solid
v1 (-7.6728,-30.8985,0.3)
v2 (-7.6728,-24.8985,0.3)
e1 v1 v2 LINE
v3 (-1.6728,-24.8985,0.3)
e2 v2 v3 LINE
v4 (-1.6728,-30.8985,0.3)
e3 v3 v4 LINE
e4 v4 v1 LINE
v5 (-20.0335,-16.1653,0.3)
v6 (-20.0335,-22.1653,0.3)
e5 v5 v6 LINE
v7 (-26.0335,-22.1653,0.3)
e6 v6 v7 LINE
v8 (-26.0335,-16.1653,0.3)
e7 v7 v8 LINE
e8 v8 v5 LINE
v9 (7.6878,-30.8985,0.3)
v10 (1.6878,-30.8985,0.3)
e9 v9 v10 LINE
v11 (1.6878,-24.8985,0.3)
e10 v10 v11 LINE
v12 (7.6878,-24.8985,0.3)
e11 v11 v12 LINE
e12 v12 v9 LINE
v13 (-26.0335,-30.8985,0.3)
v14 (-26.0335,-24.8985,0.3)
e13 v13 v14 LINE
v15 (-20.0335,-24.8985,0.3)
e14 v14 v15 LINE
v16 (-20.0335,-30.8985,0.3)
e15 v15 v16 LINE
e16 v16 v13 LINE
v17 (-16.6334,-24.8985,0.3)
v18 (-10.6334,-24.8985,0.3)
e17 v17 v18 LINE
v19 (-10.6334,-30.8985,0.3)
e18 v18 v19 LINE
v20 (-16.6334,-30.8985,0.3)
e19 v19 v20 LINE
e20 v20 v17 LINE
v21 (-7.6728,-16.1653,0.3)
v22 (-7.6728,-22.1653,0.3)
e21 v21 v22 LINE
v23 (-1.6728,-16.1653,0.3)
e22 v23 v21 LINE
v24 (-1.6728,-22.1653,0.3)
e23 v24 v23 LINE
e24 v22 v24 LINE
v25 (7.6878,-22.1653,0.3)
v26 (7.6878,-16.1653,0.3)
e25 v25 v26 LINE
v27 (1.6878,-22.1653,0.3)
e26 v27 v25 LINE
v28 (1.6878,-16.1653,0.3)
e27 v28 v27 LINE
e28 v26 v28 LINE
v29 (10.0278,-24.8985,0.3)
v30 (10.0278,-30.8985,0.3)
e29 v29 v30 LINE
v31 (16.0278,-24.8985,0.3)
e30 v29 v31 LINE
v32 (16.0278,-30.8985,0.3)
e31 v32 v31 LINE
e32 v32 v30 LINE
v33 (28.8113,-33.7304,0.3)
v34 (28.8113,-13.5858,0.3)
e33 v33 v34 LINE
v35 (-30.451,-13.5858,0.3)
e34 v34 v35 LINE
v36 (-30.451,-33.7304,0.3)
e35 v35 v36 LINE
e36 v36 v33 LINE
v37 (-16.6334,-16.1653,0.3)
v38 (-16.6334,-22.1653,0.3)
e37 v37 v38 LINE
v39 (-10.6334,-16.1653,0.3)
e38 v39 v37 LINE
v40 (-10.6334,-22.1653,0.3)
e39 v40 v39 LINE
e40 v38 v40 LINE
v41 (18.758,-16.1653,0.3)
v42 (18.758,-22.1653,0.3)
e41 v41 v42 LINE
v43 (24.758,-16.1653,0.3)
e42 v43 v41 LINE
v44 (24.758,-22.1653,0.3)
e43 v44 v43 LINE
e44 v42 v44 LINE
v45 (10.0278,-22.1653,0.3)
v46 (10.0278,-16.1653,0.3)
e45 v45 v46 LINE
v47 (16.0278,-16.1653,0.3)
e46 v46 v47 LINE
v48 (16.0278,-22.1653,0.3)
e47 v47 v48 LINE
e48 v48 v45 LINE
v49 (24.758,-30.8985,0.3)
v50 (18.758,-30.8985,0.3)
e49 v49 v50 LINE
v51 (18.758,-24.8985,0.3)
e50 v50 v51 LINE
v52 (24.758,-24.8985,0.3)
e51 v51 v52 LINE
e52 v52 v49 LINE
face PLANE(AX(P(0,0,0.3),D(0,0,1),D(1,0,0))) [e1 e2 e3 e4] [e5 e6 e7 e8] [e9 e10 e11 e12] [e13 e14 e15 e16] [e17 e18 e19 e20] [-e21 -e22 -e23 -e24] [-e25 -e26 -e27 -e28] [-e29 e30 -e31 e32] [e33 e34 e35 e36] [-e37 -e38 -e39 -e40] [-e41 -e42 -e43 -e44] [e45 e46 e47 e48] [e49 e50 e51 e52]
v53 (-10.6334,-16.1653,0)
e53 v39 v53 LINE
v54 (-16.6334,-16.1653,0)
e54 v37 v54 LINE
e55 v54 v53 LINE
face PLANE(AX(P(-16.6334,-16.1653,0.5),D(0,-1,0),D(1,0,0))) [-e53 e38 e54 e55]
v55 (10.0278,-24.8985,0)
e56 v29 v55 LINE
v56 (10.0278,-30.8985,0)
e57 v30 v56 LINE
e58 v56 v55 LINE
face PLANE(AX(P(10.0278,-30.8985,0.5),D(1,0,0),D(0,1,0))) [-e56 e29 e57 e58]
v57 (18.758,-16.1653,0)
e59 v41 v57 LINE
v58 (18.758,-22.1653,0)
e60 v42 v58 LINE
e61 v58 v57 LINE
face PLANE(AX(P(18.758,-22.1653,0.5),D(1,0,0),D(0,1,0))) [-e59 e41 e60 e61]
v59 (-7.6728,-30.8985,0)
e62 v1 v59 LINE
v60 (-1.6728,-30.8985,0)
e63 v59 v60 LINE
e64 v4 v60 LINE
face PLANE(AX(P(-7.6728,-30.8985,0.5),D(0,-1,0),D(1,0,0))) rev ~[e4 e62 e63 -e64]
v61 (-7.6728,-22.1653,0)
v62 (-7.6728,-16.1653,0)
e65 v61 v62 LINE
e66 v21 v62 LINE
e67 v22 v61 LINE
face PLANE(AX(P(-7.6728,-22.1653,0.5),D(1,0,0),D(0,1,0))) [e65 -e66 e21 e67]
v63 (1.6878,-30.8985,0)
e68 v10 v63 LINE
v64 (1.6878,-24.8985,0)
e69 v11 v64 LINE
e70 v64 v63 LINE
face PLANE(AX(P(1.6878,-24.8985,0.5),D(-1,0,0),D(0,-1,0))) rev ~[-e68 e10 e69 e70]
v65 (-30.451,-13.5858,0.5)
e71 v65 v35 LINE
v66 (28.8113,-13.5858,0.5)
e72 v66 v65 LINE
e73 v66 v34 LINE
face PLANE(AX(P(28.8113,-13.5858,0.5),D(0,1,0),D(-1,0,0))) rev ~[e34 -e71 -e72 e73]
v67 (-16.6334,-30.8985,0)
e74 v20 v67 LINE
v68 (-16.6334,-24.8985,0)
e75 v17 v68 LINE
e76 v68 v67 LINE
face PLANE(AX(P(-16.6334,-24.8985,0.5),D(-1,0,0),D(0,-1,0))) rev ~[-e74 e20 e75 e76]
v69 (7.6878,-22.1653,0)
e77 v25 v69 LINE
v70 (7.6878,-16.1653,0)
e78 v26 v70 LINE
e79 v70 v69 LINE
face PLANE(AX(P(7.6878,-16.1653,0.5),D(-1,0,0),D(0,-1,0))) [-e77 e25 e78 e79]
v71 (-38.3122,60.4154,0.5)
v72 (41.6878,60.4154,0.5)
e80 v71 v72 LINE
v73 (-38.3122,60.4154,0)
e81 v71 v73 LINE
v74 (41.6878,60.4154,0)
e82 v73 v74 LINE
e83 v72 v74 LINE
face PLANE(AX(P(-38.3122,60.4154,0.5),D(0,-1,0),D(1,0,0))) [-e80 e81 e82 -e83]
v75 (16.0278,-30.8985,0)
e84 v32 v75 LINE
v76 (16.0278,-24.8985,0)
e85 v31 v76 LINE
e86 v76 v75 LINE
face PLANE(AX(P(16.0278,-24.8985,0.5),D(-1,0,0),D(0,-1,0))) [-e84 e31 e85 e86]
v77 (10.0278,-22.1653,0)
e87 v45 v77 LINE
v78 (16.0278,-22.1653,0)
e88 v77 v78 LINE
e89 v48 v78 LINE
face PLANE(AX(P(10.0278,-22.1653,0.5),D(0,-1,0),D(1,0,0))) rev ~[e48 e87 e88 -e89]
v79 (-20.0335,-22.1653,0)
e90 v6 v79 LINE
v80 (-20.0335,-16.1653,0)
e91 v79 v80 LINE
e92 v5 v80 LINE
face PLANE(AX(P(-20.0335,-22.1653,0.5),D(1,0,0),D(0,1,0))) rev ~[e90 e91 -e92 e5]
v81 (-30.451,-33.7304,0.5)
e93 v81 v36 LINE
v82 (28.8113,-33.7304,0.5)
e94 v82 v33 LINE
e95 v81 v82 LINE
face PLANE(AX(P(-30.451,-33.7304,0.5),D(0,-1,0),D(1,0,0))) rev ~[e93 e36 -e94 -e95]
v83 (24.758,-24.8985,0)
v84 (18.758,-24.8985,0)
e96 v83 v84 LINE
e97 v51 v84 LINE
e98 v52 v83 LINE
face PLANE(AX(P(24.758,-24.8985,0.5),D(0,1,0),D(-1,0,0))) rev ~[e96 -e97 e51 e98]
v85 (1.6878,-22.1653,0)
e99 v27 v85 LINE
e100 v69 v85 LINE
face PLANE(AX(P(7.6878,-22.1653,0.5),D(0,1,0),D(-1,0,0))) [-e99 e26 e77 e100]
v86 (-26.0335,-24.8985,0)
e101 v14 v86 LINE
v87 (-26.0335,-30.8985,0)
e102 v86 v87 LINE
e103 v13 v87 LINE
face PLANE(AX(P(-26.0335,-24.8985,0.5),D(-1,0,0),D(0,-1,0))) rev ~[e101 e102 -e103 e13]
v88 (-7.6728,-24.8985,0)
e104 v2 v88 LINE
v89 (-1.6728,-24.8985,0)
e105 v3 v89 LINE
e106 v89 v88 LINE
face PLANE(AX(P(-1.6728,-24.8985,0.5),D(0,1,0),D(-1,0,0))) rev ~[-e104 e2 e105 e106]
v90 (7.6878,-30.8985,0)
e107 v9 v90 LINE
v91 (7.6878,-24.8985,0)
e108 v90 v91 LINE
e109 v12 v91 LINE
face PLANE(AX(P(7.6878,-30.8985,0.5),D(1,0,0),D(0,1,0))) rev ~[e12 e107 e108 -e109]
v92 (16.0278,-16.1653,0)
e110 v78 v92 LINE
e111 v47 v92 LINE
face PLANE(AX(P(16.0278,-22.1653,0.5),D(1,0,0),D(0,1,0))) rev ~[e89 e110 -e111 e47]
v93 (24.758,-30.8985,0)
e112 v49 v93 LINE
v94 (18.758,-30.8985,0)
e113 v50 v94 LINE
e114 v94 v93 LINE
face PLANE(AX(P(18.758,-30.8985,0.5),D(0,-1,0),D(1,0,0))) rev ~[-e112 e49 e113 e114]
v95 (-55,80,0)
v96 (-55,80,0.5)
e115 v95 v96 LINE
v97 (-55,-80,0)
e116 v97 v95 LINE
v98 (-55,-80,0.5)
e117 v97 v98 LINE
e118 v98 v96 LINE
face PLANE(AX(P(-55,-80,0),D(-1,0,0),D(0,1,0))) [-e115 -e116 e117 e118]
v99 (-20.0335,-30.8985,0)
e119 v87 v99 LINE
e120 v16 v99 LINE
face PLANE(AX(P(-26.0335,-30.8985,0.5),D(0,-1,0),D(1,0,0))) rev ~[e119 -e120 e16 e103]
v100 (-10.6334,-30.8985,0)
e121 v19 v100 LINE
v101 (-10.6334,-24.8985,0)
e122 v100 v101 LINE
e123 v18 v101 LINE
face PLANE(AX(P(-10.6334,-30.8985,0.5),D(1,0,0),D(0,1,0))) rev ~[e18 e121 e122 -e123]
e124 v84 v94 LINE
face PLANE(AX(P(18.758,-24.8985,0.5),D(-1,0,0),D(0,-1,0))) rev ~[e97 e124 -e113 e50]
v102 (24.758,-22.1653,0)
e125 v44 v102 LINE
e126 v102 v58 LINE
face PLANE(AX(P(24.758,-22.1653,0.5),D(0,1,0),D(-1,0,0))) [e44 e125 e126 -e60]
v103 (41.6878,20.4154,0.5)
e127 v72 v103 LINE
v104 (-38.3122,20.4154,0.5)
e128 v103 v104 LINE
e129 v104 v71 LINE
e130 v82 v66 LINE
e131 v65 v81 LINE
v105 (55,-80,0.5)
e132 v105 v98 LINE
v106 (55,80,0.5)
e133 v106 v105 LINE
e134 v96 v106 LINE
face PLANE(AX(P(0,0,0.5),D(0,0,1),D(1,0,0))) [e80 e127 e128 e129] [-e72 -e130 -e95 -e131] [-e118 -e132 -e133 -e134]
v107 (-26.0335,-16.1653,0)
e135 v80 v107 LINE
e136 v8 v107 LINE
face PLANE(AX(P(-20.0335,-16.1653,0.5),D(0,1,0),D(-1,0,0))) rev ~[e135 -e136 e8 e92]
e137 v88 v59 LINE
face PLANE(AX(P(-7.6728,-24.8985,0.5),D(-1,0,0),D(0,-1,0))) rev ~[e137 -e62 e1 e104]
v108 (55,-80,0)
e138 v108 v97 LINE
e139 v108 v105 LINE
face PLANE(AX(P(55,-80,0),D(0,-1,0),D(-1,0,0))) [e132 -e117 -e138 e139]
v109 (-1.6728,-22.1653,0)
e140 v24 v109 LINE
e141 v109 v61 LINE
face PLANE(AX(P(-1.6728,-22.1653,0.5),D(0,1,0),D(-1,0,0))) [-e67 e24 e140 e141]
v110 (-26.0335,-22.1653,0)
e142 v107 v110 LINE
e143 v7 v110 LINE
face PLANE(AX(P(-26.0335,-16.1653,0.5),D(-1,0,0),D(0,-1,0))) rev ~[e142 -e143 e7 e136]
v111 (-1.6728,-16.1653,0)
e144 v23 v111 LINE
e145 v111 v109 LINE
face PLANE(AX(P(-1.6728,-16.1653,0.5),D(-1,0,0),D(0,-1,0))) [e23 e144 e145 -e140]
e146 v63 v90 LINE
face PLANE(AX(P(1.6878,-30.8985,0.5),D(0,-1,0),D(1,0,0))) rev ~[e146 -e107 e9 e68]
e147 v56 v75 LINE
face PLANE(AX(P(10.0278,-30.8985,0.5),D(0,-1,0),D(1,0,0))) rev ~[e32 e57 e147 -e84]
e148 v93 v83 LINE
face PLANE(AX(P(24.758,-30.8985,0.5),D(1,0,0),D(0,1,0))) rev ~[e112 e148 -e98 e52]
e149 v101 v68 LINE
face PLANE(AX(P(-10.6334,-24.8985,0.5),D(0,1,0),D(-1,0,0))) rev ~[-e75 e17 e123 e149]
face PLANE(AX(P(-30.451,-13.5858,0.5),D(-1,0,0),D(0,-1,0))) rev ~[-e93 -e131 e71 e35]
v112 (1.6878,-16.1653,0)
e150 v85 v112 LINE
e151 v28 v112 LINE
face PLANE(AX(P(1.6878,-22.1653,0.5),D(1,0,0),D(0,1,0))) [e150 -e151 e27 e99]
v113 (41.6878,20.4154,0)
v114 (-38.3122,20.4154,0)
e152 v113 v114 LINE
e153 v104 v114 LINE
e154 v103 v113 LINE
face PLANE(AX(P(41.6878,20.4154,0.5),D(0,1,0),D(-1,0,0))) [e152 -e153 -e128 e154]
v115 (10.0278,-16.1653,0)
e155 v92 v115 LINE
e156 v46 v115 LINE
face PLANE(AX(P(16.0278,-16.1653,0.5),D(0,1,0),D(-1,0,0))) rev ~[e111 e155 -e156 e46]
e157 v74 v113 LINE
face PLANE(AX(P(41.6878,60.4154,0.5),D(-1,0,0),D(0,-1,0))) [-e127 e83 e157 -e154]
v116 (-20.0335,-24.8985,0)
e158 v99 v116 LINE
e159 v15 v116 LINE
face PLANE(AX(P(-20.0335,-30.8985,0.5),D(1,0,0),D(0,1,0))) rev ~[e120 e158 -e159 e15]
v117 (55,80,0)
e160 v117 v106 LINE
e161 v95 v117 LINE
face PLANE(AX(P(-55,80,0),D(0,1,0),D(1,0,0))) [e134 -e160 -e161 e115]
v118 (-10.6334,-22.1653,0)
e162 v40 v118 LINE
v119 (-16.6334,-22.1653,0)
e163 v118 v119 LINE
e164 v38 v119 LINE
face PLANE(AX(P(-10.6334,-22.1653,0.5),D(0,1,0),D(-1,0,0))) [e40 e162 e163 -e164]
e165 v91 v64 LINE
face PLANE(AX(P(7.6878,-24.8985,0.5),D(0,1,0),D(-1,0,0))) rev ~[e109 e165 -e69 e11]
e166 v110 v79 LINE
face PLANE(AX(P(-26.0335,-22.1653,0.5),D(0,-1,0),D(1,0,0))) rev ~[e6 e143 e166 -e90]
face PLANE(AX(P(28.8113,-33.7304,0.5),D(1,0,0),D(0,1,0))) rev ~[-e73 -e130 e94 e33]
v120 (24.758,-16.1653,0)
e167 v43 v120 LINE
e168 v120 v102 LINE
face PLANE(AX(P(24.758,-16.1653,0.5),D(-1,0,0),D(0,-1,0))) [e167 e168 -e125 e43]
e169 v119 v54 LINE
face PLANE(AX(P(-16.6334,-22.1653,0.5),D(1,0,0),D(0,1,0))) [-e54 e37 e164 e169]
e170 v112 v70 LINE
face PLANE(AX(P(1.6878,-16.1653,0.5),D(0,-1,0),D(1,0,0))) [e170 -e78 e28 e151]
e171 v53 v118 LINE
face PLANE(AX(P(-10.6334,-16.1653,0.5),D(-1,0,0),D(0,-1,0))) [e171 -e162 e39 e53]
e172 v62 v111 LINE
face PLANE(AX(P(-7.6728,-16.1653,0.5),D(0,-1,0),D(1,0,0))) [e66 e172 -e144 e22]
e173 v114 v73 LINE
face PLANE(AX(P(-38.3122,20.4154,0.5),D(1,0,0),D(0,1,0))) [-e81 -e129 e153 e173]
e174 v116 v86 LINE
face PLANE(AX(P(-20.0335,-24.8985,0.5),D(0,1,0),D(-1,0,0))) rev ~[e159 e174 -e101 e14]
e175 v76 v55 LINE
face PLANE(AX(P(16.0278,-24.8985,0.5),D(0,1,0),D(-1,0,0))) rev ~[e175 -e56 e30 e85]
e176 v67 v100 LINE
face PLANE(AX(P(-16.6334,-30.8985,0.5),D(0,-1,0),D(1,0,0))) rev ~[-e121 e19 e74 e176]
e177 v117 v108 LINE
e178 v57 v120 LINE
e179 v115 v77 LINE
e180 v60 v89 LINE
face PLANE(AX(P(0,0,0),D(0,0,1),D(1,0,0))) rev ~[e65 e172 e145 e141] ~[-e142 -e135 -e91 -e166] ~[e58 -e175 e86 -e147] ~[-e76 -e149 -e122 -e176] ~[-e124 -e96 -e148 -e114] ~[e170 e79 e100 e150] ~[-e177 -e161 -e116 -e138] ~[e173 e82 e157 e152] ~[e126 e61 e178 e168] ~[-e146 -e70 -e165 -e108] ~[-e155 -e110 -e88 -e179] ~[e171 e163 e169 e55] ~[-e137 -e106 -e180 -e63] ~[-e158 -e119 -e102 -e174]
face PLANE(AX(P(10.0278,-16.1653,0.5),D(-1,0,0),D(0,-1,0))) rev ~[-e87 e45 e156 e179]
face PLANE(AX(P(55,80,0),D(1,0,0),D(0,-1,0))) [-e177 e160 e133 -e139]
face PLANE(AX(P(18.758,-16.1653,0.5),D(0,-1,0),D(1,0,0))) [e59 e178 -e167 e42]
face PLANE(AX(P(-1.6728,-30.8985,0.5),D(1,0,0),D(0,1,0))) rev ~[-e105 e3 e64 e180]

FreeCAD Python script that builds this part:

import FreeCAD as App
import Part
import Sketcher

V = App.Vector
Q = App.Units.Quantity


def add_polygon(sketch, points):
    """Adds a closed chain of lines whose ends are joined by coincident constraints."""
    first, n = sketch.GeometryCount, len(points)
    for a, b in zip(points, points[1:] + points[:1]):
        sketch.addGeometry(Part.LineSegment(App.Vector(*a, 0), App.Vector(*b, 0)), False)
    for i in range(n):
        sketch.addConstraint(Sketcher.Constraint("Coincident", first + i, 2, first + (i + 1) % n, 1))

doc = App.newDocument("Part")
body = doc.addObject("PartDesign::Body", "Body")

sketch1 = body.newObject("Sketcher::SketchObject", "Sketch")
sketch1.AttachmentSupport = (doc.getObject("XY_Plane"), [""])
sketch1.MapMode = "FlatFace"
add_polygon(sketch1, [(55, 80), (-55, 80), (-55, -80), (55, -80)])
sketch1.addConstraint(Sketcher.Constraint("Horizontal", 0))
sketch1.addConstraint(Sketcher.Constraint("Vertical", 1))
sketch1.addConstraint(Sketcher.Constraint("Horizontal", 2))
sketch1.addConstraint(Sketcher.Constraint("Vertical", 3))
sketch1.addConstraint(Sketcher.Constraint("Symmetric", 0, 2, 2, 2, -1, 1))
sketch1.addConstraint(Sketcher.Constraint("DistanceX", 0, 2, 0, 1, Q("110 mm")))
sketch1.addConstraint(Sketcher.Constraint("DistanceY", 1, 2, 1, 1, Q("160 mm")))
pad1 = body.newObject("PartDesign::Pad", "Pad")
pad1.Profile = sketch1
pad1.Length = 0.5

sketch2 = body.newObject("Sketcher::SketchObject", "Sketch001")
sketch2.AttachmentSupport = (doc.getObject("XY_Plane"), [""])
sketch2.MapMode = "FlatFace"
sketch2.AttachmentOffset = App.Placement(V(0, 0, 0.5), App.Rotation())
add_polygon(sketch2, [(42, 60), (-38, 60), (-38, 20), (42, 20)])
add_polygon(sketch2, [(-20, -16), (-26, -16), (-26, -22), (-20, -22)])
add_polygon(sketch2, [(-17, -16), (-17, -22), (-11, -22), (-11, -16)])
add_polygon(sketch2, [(-8, -16), (-8, -22), (-2, -22), (-2, -16)])
add_polygon(sketch2, [(2, -16), (2, -22), (8, -22), (8, -16)])
add_polygon(sketch2, [(16, -16), (10, -16), (10, -22), (16, -22)])
add_polygon(sketch2, [(19, -16), (19, -22), (25, -22), (25, -16)])
add_polygon(sketch2, [(-20, -25), (-26, -25), (-26, -31), (-20, -31)])
add_polygon(sketch2, [(-11, -25), (-17, -25), (-17, -31), (-11, -31)])
add_polygon(sketch2, [(-2, -25), (-8, -25), (-8, -31), (-2, -31)])
add_polygon(sketch2, [(8, -25), (2, -25), (2, -31), (8, -31)])
add_polygon(sketch2, [(16, -31), (16, -25), (10, -25), (10, -31)])
add_polygon(sketch2, [(25, -25), (19, -25), (19, -31), (25, -31)])
sketch2.addConstraint(Sketcher.Constraint("Horizontal", 0))
sketch2.addConstraint(Sketcher.Constraint("Vertical", 1))
sketch2.addConstraint(Sketcher.Constraint("Horizontal", 2))
sketch2.addConstraint(Sketcher.Constraint("Vertical", 3))
sketch2.addConstraint(Sketcher.Constraint("Horizontal", 4))
sketch2.addConstraint(Sketcher.Constraint("Vertical", 5))
sketch2.addConstraint(Sketcher.Constraint("Horizontal", 6))
sketch2.addConstraint(Sketcher.Constraint("Vertical", 7))
sketch2.addConstraint(Sketcher.Constraint("Vertical", 8))
sketch2.addConstraint(Sketcher.Constraint("Horizontal", 9))
sketch2.addConstraint(Sketcher.Constraint("Vertical", 10))
sketch2.addConstraint(Sketcher.Constraint("Horizontal", 11))
sketch2.addConstraint(Sketcher.Constraint("Vertical", 12))
sketch2.addConstraint(Sketcher.Constraint("Horizontal", 13))
sketch2.addConstraint(Sketcher.Constraint("Vertical", 14))
sketch2.addConstraint(Sketcher.Constraint("Horizontal", 15))
sketch2.addConstraint(Sketcher.Constraint("Vertical", 16))
sketch2.addConstraint(Sketcher.Constraint("Horizontal", 17))
sketch2.addConstraint(Sketcher.Constraint("Vertical", 18))
sketch2.addConstraint(Sketcher.Constraint("Horizontal", 19))
sketch2.addConstraint(Sketcher.Constraint("Horizontal", 20))
sketch2.addConstraint(Sketcher.Constraint("Vertical", 21))
sketch2.addConstraint(Sketcher.Constraint("Horizontal", 22))
sketch2.addConstraint(Sketcher.Constraint("Vertical", 23))
sketch2.addConstraint(Sketcher.Constraint("Vertical", 24))
sketch2.addConstraint(Sketcher.Constraint("Horizontal", 25))
sketch2.addConstraint(Sketcher.Constraint("Vertical", 26))
sketch2.addConstraint(Sketcher.Constraint("Horizontal", 27))
sketch2.addConstraint(Sketcher.Constraint("Horizontal", 28))
sketch2.addConstraint(Sketcher.Constraint("Vertical", 29))
sketch2.addConstraint(Sketcher.Constraint("Horizontal", 30))
sketch2.addConstraint(Sketcher.Constraint("Vertical", 31))
sketch2.addConstraint(Sketcher.Constraint("Horizontal", 32))
sketch2.addConstraint(Sketcher.Constraint("Vertical", 33))
sketch2.addConstraint(Sketcher.Constraint("Horizontal", 34))
sketch2.addConstraint(Sketcher.Constraint("Vertical", 35))
sketch2.addConstraint(Sketcher.Constraint("Horizontal", 36))
sketch2.addConstraint(Sketcher.Constraint("Vertical", 37))
sketch2.addConstraint(Sketcher.Constraint("Horizontal", 38))
sketch2.addConstraint(Sketcher.Constraint("Vertical", 39))
sketch2.addConstraint(Sketcher.Constraint("Horizontal", 40))
sketch2.addConstraint(Sketcher.Constraint("Vertical", 41))
sketch2.addConstraint(Sketcher.Constraint("Horizontal", 42))
sketch2.addConstraint(Sketcher.Constraint("Vertical", 43))
sketch2.addConstraint(Sketcher.Constraint("Vertical", 44))
sketch2.addConstraint(Sketcher.Constraint("Horizontal", 45))
sketch2.addConstraint(Sketcher.Constraint("Vertical", 46))
sketch2.addConstraint(Sketcher.Constraint("Horizontal", 47))
sketch2.addConstraint(Sketcher.Constraint("Horizontal", 48))
sketch2.addConstraint(Sketcher.Constraint("Vertical", 49))
sketch2.addConstraint(Sketcher.Constraint("Horizontal", 50))
sketch2.addConstraint(Sketcher.Constraint("Vertical", 51))
sketch2.addConstraint(Sketcher.Constraint("Horizontal", 6, 2, 8, 2))
sketch2.addConstraint(Sketcher.Constraint("Horizontal", 7, 2, 10, 2))
sketch2.addConstraint(Sketcher.Constraint("Horizontal", 9, 2, 12, 2))
sketch2.addConstraint(Sketcher.Constraint("Horizontal", 11, 2, 14, 2))
sketch2.addConstraint(Sketcher.Constraint("Horizontal", 13, 2, 16, 2))
sketch2.addConstraint(Sketcher.Constraint("Horizontal", 15, 2, 18, 2))
sketch2.addConstraint(Sketcher.Constraint("Horizontal", 19, 2, 20, 2))
sketch2.addConstraint(Sketcher.Constraint("Horizontal", 17, 2, 21, 2))
sketch2.addConstraint(Sketcher.Constraint("Horizontal", 22, 2, 24, 2))
sketch2.addConstraint(Sketcher.Constraint("Horizontal", 23, 2, 26, 2))
sketch2.addConstraint(Sketcher.Constraint("Horizontal", 31, 2, 32, 2))
sketch2.addConstraint(Sketcher.Constraint("Horizontal", 30, 2, 33, 2))
sketch2.addConstraint(Sketcher.Constraint("Horizontal", 35, 2, 36, 2))
sketch2.addConstraint(Sketcher.Constraint("Horizontal", 34, 2, 37, 2))
sketch2.addConstraint(Sketcher.Constraint("Horizontal", 39, 2, 40, 2))
sketch2.addConstraint(Sketcher.Constraint("Horizontal", 38, 2, 41, 2))
sketch2.addConstraint(Sketcher.Constraint("Horizontal", 43, 2, 44, 2))
sketch2.addConstraint(Sketcher.Constraint("Horizontal", 42, 2, 46, 2))
sketch2.addConstraint(Sketcher.Constraint("Horizontal", 45, 2, 48, 2))
sketch2.addConstraint(Sketcher.Constraint("Horizontal", 47, 2, 49, 2))
sketch2.addConstraint(Sketcher.Constraint("Vertical", 5, 2, 28, 2))
sketch2.addConstraint(Sketcher.Constraint("Vertical", 7, 2, 30, 2))
sketch2.addConstraint(Sketcher.Constraint("Vertical", 11, 2, 32, 2))
sketch2.addConstraint(Sketcher.Constraint("Vertical", 10, 2, 34, 2))
sketch2.addConstraint(Sketcher.Constraint("Vertical", 15, 2, 36, 2))
sketch2.addConstraint(Sketcher.Constraint("Vertical", 14, 2, 38, 2))
sketch2.addConstraint(Sketcher.Constraint("Vertical", 19, 2, 40, 2))
sketch2.addConstraint(Sketcher.Constraint("Vertical", 18, 2, 42, 2))
sketch2.addConstraint(Sketcher.Constraint("Vertical", 23, 2, 44, 2))
sketch2.addConstraint(Sketcher.Constraint("Vertical", 21, 2, 45, 2))
sketch2.addConstraint(Sketcher.Constraint("Vertical", 27, 2, 48, 2))
sketch2.addConstraint(Sketcher.Constraint("Vertical", 26, 2, 50, 2))
sketch2.addConstraint(Sketcher.Constraint("Equal", 6, 9))
sketch2.addConstraint(Sketcher.Constraint("Equal", 11, 13))
sketch2.addConstraint(Sketcher.Constraint("Equal", 15, 17))
sketch2.addConstraint(Sketcher.Constraint("Equal", 19, 20))
sketch2.addConstraint(Sketcher.Constraint("Equal", 22, 25))
sketch2.addConstraint(Sketcher.Constraint("Equal", 50, 5))
sketch2.addConstraint(Sketcher.Constraint("Equal", 26, 29))
sketch2.addConstraint(Sketcher.Constraint("DistanceX", 0, 2, 0, 1, Q("80 mm")))
sketch2.addConstraint(Sketcher.Constraint("DistanceX", 4, 2, 4, 1, Q("6 mm")))
sketch2.addConstraint(Sketcher.Constraint("DistanceY", 1, 2, 1, 1, Q("40 mm")))
sketch2.addConstraint(Sketcher.Constraint("DistanceX", 6, 2, 8, 2, Q("3.4 mm")))
sketch2.addConstraint(Sketcher.Constraint("DistanceX", 18, 2, 20, 2, Q("2.34 mm")))
sketch2.addConstraint(Sketcher.Constraint("DistanceX", -1, 1, 24, 2, Q("18.758 mm")))
sketch2.addConstraint(Sketcher.Constraint("DistanceX", 0, 2, -1, 1, Q("38.3122 mm")))
sketch2.addConstraint(Sketcher.Constraint("DistanceY", -1, 1, 0, 2, Q("60.4154 mm")))
sketch2.addConstraint(Sketcher.Constraint("DistanceX", 4, 2, -1, 1, Q("26.0335 mm")))
sketch2.addConstraint(Sketcher.Constraint("DistanceY", 4, 2, -1, 1, Q("16.1653 mm")))
sketch2.addConstraint(Sketcher.Constraint("DistanceX", 12, 2, -1, 1, Q("7.6728 mm")))
sketch2.addConstraint(Sketcher.Constraint("DistanceX", -1, 1, 16, 2, Q("1.6878 mm")))
sketch2.addConstraint(Sketcher.Constraint("DistanceY", 28, 2, -1, 1, Q("24.8985 mm")))
pocket1 = body.newObject("PartDesign::Pocket", "Pocket")
pocket1.Profile = sketch2
pocket1.Length = 10

sketch3 = body.newObject("Sketcher::SketchObject", "Sketch002")
sketch3.AttachmentSupport = (doc.getObject("XY_Plane"), [""])
sketch3.MapMode = "FlatFace"
sketch3.AttachmentOffset = App.Placement(V(0, 0, 0.5), App.Rotation())
add_polygon(sketch3, [(29, -14), (-30, -14), (-30, -34), (29, -34)])
sketch3.addConstraint(Sketcher.Constraint("Horizontal", 0))
sketch3.addConstraint(Sketcher.Constraint("Vertical", 1))
sketch3.addConstraint(Sketcher.Constraint("Horizontal", 2))
sketch3.addConstraint(Sketcher.Constraint("Vertical", 3))
sketch3.addConstraint(Sketcher.Constraint("DistanceX", 0, 2, 0, 1, Q("59.2623 mm")))
sketch3.addConstraint(Sketcher.Constraint("DistanceY", 1, 2, 1, 1, Q("20.1446 mm")))
sketch3.addConstraint(Sketcher.Constraint("DistanceX", 0, 2, -1, 1, Q("30.451 mm")))
sketch3.addConstraint(Sketcher.Constraint("DistanceY", 0, 2, -1, 1, Q("13.5858 mm")))
pocket2 = body.newObject("PartDesign::Pocket", "Pocket001")
pocket2.Profile = sketch3
pocket2.Length = 0.2

doc.recompute()
